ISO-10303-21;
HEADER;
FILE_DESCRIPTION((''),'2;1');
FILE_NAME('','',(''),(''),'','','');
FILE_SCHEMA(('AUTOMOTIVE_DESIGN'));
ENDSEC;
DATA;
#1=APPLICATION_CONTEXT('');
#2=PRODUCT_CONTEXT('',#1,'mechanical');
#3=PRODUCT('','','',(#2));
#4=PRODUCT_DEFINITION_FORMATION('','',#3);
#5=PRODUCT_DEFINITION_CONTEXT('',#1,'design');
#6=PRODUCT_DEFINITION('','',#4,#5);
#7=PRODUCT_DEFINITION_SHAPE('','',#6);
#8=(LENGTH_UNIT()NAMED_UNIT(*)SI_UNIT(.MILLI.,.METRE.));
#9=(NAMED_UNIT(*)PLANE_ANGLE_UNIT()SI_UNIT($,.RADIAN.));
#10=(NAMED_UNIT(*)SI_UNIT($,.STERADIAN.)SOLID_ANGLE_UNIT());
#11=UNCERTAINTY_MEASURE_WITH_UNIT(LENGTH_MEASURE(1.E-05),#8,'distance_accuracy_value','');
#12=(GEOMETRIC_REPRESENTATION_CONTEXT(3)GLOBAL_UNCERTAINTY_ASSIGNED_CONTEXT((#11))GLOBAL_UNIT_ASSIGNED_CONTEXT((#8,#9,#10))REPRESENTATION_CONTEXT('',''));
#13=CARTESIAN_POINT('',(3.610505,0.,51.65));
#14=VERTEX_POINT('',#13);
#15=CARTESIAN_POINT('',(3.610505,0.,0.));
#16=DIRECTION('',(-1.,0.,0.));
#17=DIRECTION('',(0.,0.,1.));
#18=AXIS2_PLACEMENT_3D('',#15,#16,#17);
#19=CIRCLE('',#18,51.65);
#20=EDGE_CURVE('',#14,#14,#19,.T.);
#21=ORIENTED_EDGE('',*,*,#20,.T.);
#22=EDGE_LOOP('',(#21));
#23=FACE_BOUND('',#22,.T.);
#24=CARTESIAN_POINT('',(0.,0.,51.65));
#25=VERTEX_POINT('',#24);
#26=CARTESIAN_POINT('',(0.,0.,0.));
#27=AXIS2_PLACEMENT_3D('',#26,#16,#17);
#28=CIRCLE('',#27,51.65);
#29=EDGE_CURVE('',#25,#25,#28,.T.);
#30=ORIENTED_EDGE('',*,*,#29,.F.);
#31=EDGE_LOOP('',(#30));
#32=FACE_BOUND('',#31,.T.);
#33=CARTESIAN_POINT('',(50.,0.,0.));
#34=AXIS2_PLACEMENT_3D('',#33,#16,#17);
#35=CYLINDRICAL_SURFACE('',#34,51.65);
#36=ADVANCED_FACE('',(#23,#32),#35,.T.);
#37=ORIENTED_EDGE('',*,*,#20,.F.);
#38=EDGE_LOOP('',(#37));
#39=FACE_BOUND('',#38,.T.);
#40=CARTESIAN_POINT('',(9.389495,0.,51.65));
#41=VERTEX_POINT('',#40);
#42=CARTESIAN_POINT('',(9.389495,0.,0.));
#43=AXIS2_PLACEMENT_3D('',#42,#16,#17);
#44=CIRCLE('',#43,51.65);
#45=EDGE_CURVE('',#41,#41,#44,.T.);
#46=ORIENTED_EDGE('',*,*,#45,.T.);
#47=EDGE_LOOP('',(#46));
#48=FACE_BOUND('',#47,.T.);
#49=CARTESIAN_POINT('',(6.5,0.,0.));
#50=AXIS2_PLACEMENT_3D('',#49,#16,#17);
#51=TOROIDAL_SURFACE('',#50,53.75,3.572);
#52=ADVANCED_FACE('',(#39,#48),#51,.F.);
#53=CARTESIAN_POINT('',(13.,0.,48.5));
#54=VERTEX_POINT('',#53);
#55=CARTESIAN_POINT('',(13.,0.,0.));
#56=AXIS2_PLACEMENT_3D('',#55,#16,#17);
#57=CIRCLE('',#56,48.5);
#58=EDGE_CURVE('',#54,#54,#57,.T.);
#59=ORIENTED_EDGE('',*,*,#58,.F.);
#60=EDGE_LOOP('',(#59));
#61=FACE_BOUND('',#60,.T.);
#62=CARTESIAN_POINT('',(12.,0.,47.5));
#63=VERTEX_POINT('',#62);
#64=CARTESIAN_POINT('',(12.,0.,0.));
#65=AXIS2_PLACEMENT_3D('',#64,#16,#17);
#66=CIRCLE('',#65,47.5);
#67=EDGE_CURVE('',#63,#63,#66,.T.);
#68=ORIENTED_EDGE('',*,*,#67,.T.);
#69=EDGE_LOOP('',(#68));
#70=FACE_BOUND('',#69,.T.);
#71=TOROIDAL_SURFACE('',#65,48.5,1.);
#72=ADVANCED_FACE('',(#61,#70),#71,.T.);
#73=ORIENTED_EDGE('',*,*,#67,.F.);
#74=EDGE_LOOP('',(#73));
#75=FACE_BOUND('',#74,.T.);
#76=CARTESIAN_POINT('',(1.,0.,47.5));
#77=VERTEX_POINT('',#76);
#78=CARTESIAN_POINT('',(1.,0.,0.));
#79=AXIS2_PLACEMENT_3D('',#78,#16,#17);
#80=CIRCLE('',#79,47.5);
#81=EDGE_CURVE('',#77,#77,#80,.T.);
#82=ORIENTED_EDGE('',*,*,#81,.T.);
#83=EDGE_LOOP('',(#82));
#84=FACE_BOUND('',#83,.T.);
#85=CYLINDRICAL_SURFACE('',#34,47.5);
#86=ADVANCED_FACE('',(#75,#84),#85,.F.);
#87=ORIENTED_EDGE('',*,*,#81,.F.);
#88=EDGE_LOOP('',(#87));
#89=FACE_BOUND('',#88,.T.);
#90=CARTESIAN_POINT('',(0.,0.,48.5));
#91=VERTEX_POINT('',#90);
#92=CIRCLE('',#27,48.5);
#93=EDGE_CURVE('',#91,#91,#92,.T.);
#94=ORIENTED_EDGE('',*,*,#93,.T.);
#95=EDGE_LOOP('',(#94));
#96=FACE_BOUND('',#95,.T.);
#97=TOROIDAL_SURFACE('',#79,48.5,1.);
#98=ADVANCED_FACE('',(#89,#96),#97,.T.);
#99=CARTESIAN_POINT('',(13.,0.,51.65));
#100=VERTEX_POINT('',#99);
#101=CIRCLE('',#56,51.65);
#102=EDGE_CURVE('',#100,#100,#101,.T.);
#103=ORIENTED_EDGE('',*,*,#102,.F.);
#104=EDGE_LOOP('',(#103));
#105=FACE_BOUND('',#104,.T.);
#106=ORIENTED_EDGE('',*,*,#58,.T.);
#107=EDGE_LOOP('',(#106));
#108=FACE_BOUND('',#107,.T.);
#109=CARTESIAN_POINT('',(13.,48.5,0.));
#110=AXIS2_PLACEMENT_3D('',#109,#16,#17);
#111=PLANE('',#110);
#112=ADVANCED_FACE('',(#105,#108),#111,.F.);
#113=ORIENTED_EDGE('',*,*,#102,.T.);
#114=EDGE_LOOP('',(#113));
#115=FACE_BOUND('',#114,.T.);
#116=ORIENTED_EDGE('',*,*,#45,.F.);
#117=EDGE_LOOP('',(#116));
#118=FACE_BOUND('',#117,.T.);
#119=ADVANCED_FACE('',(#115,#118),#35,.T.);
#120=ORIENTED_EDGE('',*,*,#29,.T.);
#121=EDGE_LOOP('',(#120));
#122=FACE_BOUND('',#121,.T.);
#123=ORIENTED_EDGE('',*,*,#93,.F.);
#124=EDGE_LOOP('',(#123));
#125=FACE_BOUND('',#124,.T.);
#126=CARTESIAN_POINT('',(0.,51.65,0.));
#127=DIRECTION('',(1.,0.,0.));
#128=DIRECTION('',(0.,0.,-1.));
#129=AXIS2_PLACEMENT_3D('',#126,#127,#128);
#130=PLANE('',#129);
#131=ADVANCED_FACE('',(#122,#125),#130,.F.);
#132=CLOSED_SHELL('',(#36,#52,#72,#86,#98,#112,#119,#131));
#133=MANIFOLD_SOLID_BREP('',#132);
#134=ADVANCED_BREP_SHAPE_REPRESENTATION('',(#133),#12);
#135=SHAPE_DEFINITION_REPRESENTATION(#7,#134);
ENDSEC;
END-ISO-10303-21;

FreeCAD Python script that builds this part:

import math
import FreeCAD as App
import Part
import Sketcher

V = App.Vector

doc = App.newDocument("Part")
body = doc.addObject("PartDesign::Body", "Body")

sketch1 = body.newObject("Sketcher::SketchObject", "Sketch")
sketch1.AttachmentSupport = (doc.getObject("XY_Plane"), [""])
sketch1.MapMode = "FlatFace"
sketch1.addGeometry([
    Part.LineSegment(V(1, 47.5, 0), V(12, 47.5, 0)),
    Part.ArcOfCircle(Part.Circle(V(12, 48.5, 0), V(0, 0, 1), 1), math.radians(-90), math.radians(0)),
    Part.LineSegment(V(13, 48.5, 0), V(13, 51.6, 0)),
    Part.LineSegment(V(13, 51.6, 0), V(9.4, 51.6, 0)),
    Part.ArcOfCircle(Part.Circle(V(6.5, 53.8, 0), V(0, 0, 1), 3.6), math.radians(-144), math.radians(-36)),
    Part.LineSegment(V(3.6, 51.6, 0), V(0, 51.6, 0)),
    Part.LineSegment(V(0, 51.6, 0), V(0, 48.5, 0)),
    Part.ArcOfCircle(Part.Circle(V(1, 48.5, 0), V(0, 0, 1), 1), math.radians(-180), math.radians(-90)),
], False)
sketch1.addConstraint([
    Sketcher.Constraint("Tangent", 0, 2, 1, 1),
    Sketcher.Constraint("Tangent", 1, 2, 2, 1),
    Sketcher.Constraint("Coincident", 2, 2, 3, 1),
    Sketcher.Constraint("Coincident", 3, 2, 4, 2),
    Sketcher.Constraint("Coincident", 4, 1, 5, 1),
    Sketcher.Constraint("Coincident", 5, 2, 6, 1),
    Sketcher.Constraint("Tangent", 6, 2, 7, 1),
    Sketcher.Constraint("Tangent", 7, 2, 0, 1),
    Sketcher.Constraint("Horizontal", 0),
    Sketcher.Constraint("Vertical", 2),
    Sketcher.Constraint("Horizontal", 3),
    Sketcher.Constraint("Horizontal", 5),
    Sketcher.Constraint("Vertical", 6),
    Sketcher.Constraint("Equal", 1, 7),
    Sketcher.Constraint("PointOnObject", 5, 2, -2),
    Sketcher.Constraint("Horizontal", 3, 2, 4, 1),
    Sketcher.Constraint("Equal", 3, 5),
    Sketcher.Constraint("Radius", 1, 1.0),
    Sketcher.Constraint("DistanceX", 0, 1, 0, 2, 11.0),
    Sketcher.Constraint("Radius", 4, 3.572),
    Sketcher.Constraint("DistanceY", 2, 1, 2, 2, 3.15),
    Sketcher.Constraint("DistanceY", -1, 1, 1, 3, 48.5),
    Sketcher.Constraint("DistanceY", 2, 2, 4, 3, 2.1),
])
revolution = body.newObject("PartDesign::Revolution", "Revolution")
revolution.Profile = sketch1
revolution.ReferenceAxis = (sketch1, ["H_Axis"])
revolution.Angle = 360

doc.recompute()
